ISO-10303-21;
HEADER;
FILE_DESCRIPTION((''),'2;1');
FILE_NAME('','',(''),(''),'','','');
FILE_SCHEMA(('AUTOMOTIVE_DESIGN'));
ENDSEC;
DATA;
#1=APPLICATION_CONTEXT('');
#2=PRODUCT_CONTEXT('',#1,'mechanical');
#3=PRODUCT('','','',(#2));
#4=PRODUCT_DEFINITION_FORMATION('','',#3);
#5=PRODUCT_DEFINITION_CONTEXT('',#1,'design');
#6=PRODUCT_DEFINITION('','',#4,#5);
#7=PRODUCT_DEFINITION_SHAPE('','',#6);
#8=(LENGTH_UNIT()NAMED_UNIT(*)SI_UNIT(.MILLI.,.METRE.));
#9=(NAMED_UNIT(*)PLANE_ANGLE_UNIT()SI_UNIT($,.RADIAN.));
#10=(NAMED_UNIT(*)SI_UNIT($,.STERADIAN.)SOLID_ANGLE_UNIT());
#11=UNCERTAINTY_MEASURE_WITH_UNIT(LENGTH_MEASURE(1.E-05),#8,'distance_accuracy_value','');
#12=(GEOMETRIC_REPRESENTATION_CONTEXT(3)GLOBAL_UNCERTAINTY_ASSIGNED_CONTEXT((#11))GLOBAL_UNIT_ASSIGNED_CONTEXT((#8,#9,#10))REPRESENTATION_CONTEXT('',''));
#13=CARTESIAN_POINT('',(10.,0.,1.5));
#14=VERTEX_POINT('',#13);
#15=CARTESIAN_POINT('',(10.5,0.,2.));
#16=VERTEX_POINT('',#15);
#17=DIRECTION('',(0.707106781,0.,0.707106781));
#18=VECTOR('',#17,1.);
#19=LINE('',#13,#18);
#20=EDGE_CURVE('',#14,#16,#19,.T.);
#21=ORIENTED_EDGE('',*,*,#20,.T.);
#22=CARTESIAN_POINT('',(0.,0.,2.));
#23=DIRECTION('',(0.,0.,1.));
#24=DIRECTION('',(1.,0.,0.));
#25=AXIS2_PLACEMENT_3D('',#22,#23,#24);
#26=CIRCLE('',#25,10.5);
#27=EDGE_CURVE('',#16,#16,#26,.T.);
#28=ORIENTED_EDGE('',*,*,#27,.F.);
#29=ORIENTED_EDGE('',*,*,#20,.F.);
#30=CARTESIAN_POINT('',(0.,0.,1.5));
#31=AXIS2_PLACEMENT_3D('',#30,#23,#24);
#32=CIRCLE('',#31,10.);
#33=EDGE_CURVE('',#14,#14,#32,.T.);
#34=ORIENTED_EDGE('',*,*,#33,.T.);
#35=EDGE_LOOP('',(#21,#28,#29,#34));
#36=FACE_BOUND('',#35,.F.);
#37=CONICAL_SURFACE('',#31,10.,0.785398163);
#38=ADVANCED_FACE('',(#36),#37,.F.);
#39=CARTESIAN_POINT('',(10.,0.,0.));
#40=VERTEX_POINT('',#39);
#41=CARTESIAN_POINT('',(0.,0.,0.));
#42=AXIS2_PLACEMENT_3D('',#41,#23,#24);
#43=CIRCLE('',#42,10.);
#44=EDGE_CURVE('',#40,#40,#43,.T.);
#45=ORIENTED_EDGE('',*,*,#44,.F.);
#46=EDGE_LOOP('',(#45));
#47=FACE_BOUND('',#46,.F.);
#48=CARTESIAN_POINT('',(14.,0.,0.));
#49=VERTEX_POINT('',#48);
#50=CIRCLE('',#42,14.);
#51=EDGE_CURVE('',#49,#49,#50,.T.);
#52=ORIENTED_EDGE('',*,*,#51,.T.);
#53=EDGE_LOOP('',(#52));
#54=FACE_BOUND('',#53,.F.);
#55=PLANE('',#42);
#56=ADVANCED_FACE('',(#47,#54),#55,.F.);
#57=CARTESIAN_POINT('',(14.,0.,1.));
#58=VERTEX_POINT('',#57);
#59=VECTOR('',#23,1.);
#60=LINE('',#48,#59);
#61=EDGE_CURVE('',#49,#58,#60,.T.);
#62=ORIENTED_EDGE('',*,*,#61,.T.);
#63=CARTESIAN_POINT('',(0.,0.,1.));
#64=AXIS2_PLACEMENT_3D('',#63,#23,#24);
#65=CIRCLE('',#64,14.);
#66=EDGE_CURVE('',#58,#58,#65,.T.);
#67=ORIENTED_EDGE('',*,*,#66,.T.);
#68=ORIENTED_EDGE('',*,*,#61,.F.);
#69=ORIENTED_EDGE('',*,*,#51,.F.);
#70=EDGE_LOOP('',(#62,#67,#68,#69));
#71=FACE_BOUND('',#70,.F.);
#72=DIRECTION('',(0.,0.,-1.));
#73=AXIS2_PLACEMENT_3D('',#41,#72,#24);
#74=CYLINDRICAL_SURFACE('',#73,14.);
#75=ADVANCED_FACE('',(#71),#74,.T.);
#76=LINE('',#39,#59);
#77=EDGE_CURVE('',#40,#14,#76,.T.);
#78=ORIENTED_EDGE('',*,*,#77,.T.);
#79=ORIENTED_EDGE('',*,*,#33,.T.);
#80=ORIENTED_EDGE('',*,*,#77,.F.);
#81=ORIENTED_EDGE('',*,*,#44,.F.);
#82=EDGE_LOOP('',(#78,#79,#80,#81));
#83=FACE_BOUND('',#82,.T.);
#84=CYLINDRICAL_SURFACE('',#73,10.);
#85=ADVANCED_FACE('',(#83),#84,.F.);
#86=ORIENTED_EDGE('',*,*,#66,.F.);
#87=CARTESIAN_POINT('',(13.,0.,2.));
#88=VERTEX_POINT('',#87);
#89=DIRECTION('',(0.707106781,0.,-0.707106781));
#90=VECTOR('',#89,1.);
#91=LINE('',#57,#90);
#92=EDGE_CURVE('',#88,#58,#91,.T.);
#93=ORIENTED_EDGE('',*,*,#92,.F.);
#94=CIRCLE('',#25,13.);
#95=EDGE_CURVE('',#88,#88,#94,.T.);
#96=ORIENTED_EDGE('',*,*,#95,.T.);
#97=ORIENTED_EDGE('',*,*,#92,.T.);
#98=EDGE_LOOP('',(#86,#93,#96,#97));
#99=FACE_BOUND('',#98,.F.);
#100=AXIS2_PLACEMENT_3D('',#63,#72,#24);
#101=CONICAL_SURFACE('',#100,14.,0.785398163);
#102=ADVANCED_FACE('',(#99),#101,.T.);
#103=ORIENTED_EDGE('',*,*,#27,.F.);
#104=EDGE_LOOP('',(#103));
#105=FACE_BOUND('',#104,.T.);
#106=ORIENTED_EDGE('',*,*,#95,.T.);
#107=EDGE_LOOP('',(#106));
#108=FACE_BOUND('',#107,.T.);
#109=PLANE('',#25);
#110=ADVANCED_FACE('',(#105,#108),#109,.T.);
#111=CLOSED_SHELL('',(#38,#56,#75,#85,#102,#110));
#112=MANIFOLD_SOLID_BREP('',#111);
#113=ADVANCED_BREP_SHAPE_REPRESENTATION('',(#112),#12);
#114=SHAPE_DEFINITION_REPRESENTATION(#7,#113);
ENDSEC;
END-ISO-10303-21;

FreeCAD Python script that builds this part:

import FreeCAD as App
import Part
import Sketcher

V = App.Vector


def edges_at(feature, points):
    """Names of the edges that pass closest to the given points."""
    edges = feature.Shape.Edges
    near = lambda p: min(range(len(edges)), key=lambda i: edges[i].distToShape(Part.Vertex(*p))[0])
    return sorted({f"Edge{near(p) + 1}" for p in points})

doc = App.newDocument("Part")
body = doc.addObject("PartDesign::Body", "Body")

sketch1 = doc.addObject("Sketcher::SketchObject", "Sketch")
body.addObject(sketch1)
sketch1.AttachmentSupport = (doc.XY_Plane, [""])
sketch1.MapMode = "FlatFace"
sketch1.addGeometry(Part.Circle(V(0, 0, 0), V(0, 0, 1), 14), False)
sketch1.addGeometry(Part.Circle(V(0, 0, 0), V(0, 0, 1), 10), False)
sketch1.addConstraint(Sketcher.Constraint("Coincident", 0, 3, -1, 1))
sketch1.addConstraint(Sketcher.Constraint("Coincident", 1, 3, -1, 1))
sketch1.addConstraint(Sketcher.Constraint("Diameter", 0, 28.0))
sketch1.addConstraint(Sketcher.Constraint("Diameter", 1, 20.0))
pad1 = doc.addObject("PartDesign::Pad", "Pad")
body.addObject(pad1)
pad1.Profile = sketch1
pad1.Length = 2
doc.recompute()

chamfer = doc.addObject("PartDesign::Chamfer", "Chamfer")
body.addObject(chamfer)
chamfer.Base = (pad1, edges_at(pad1, [(-10, 0, 2)]))
chamfer.Size = 0.5
doc.recompute()

chamfer2 = doc.addObject("PartDesign::Chamfer", "Chamfer001")
body.addObject(chamfer2)
chamfer2.Base = (chamfer, edges_at(chamfer, [(-14, 0, 2)]))
chamfer2.Size = 1

doc.recompute()
